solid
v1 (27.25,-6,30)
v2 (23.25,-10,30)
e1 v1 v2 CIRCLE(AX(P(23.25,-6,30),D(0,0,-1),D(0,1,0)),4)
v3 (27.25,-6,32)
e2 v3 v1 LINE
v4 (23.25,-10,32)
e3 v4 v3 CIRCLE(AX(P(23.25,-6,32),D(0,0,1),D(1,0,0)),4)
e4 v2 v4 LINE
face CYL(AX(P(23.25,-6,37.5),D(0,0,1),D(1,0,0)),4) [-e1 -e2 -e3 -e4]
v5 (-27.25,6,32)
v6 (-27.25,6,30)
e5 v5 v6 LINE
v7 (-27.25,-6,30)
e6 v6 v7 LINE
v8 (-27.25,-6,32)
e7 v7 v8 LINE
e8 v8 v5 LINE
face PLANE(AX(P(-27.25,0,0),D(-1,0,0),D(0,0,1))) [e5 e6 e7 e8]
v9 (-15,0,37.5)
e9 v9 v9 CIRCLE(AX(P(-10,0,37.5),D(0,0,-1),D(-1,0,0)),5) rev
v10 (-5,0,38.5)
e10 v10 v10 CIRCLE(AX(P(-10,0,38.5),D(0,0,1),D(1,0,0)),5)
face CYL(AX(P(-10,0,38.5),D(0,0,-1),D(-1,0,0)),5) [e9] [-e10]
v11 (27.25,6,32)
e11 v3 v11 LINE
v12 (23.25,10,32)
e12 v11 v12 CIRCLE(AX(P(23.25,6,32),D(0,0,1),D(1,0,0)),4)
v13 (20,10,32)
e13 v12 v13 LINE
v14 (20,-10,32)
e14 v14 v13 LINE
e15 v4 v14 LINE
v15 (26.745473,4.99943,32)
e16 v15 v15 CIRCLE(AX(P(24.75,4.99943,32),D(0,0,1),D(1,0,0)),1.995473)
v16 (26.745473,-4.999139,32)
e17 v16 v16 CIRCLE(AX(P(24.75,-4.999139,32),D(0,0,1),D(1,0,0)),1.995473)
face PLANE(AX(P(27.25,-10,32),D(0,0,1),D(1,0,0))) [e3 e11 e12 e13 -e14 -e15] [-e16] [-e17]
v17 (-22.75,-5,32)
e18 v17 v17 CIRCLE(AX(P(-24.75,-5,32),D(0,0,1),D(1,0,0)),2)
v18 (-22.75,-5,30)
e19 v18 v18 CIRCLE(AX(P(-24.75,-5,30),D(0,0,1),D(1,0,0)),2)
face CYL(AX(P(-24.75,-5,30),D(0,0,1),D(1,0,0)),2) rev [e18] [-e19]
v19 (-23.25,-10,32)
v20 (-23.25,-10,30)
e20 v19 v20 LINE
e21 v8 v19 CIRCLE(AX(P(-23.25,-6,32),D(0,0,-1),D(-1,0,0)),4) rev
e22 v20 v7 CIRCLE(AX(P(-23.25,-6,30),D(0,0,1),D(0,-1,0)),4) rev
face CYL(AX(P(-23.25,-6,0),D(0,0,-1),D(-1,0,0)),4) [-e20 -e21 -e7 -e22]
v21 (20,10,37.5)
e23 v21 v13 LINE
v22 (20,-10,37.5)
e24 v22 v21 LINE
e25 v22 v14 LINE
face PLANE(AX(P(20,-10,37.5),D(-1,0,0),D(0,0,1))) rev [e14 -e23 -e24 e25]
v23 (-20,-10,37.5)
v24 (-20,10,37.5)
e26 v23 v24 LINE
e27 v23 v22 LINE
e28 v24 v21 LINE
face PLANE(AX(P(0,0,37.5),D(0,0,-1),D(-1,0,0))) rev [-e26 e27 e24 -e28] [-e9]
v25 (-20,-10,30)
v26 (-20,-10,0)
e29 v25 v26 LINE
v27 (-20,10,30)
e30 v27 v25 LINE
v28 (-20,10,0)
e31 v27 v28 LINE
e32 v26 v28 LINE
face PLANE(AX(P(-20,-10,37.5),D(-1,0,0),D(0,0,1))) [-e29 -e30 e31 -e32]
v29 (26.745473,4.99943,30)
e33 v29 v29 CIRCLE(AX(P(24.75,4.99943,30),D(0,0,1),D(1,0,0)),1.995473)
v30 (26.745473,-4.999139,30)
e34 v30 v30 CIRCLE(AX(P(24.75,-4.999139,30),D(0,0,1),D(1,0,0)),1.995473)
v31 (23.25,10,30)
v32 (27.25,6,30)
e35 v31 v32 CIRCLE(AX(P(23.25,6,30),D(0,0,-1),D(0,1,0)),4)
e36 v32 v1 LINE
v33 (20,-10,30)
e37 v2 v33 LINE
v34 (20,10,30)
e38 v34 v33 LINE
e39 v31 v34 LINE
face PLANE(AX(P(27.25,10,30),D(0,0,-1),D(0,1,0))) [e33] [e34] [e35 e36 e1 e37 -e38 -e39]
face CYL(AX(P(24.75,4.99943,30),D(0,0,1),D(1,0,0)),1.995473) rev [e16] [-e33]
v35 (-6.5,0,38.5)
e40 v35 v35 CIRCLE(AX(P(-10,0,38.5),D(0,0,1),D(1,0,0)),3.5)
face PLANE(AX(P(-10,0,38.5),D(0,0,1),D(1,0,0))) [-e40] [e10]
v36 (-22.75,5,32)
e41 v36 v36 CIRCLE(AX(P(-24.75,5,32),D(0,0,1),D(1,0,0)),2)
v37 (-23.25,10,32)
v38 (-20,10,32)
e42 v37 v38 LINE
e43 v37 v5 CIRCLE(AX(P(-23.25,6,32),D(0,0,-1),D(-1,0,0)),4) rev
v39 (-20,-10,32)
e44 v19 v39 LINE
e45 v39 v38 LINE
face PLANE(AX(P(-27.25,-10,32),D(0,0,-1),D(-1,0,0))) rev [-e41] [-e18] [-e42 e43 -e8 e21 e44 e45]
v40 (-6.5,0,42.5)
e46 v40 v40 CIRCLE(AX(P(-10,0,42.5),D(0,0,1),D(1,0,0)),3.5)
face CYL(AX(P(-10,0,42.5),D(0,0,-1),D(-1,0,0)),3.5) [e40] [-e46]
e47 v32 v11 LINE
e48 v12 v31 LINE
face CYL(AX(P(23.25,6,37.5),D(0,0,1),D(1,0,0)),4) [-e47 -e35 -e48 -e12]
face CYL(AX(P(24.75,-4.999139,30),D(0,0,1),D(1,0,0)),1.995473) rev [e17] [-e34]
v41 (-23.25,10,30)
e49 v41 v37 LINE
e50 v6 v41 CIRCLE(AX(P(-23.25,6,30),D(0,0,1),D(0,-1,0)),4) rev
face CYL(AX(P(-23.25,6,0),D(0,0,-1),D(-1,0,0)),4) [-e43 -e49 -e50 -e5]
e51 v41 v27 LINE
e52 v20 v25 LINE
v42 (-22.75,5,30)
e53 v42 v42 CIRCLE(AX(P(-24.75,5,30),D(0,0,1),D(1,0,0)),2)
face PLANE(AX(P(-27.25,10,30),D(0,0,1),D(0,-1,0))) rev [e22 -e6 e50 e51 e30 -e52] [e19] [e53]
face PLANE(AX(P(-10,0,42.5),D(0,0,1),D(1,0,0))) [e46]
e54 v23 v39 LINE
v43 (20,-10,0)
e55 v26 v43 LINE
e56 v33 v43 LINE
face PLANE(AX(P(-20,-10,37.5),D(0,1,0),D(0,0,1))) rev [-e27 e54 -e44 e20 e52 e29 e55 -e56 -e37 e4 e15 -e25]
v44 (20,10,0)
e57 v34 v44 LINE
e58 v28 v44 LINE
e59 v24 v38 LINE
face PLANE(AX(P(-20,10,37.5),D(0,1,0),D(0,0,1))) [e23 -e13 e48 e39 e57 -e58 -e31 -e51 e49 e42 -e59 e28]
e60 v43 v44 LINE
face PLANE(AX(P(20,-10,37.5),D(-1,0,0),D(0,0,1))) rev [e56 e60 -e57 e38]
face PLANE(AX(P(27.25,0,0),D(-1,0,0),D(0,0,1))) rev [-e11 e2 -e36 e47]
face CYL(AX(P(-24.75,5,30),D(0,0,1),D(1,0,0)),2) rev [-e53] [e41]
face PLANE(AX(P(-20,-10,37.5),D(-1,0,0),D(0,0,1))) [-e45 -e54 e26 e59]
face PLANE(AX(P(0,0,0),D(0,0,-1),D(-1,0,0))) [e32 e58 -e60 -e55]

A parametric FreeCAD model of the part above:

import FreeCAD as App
import Part
import Sketcher
from FreeCAD import Vector
Q = App.Units.Quantity


def edges_at(feature, points):
    """Names of the edges that pass closest to the given points."""
    edges = feature.Shape.Edges
    near = lambda p: min(range(len(edges)), key=lambda i: edges[i].distToShape(Part.Vertex(*p))[0])
    return sorted({f"Edge{near(p) + 1}" for p in points})


def add_polygon(sketch, points):
    """Adds a closed chain of lines whose ends are joined by coincident constraints."""
    first, n = sketch.GeometryCount, len(points)
    for a, b in zip(points, points[1:] + points[:1]):
        sketch.addGeometry(Part.LineSegment(App.Vector(*a, 0), App.Vector(*b, 0)), False)
    for i in range(n):
        sketch.addConstraint(Sketcher.Constraint("Coincident", first + i, 2, first + (i + 1) % n, 1))

doc = App.newDocument("Part")
body = doc.addObject("PartDesign::Body", "Body")

# Sketch on XY plane
sketch1 = body.newObject("Sketcher::SketchObject", "Sketch")
sketch1.AttachmentSupport = (doc.getObject("XY_Plane"), [""])
sketch1.MapMode = "FlatFace"
add_polygon(sketch1, [(-20, 10), (-20, -10), (20, -10), (20, 10)])  # lines 0-3
sketch1.addConstraint([
    Sketcher.Constraint("Vertical", 0),
    Sketcher.Constraint("Horizontal", 1),
    Sketcher.Constraint("Vertical", 2),
    Sketcher.Constraint("Horizontal", 3),
    Sketcher.Constraint("Symmetric", 0, 2, 2, 2, -1, 1),
    Sketcher.Constraint("DistanceX", 1, 1, 1, 2, Q("40 mm")),
    Sketcher.Constraint("DistanceY", 0, 2, 0, 1, Q("20 mm")),
])
pad1 = body.newObject("PartDesign::Pad", "Pad")
pad1.Profile = sketch1
pad1.Length = 37.5

# Sketch on YZ plane
sketch2 = body.newObject("Sketcher::SketchObject", "Sketch001")
sketch2.AttachmentSupport = (doc.getObject("YZ_Plane"), [""])
sketch2.MapMode = "FlatFace"
sketch2.AttachmentOffset = App.Placement(Vector(0, 0, 20), App.Rotation())
add_polygon(sketch2, [(10, 32), (-10, 32), (-10, 30), (10, 30)])  # lines 0-3
sketch2.addConstraint([
    Sketcher.Constraint("Horizontal", 0),
    Sketcher.Constraint("Vertical", 1),
    Sketcher.Constraint("Horizontal", 2),
    Sketcher.Constraint("Vertical", 3),
    Sketcher.Constraint("DistanceX", 0, 2, 0, 1, Q("20 mm")),
    Sketcher.Constraint("DistanceY", 1, 2, 1, 1, Q("2 mm")),
    Sketcher.Constraint("DistanceX", 0, 2, -1, 1, Q("10 mm")),
    Sketcher.Constraint("DistanceY", -1, 1, 0, 2, Q("32 mm")),
])
pad2 = body.newObject("PartDesign::Pad", "Pad001")
pad2.Profile = sketch2
pad2.Length = 7.25

# Sketch on XY plane
sketch3 = body.newObject("Sketcher::SketchObject", "Sketch002")
sketch3.AttachmentSupport = (doc.getObject("XY_Plane"), [""])
sketch3.MapMode = "FlatFace"
sketch3.AttachmentOffset = App.Placement(Vector(0, 0, 32), App.Rotation())
sketch3.addGeometry([
    Part.Circle(Vector(24.75, -4.999139, 0), Vector(0, 0, 1), 1.995473),
    Part.Circle(Vector(24.75, 4.99943, 0), Vector(0, 0, 1), 1.995473),
], False)
sketch3.addConstraint([
    Sketcher.Constraint("Equal", 0, 1),
    Sketcher.Constraint("Vertical", 0, 3, 1, 3),
    Sketcher.Constraint("DistanceX", -1, 1, 0, 3, Q("24.75 mm")),
    Sketcher.Constraint("Diameter", 0, Q("3.990946 mm")),
    Sketcher.Constraint("DistanceY", 0, 3, -1, 1, Q("4.999139 mm")),
    Sketcher.Constraint("DistanceY", -1, 1, 1, 3, Q("4.99943 mm")),
])
pocket1 = body.newObject("PartDesign::Pocket", "Pocket")
pocket1.Profile = sketch3
pocket1.Length = 2
doc.recompute()

fillet = body.newObject("PartDesign::Fillet", "Fillet")
fillet.Base = (pocket1, edges_at(pocket1, [(27.25, -10, 31), (27.25, 10, 31)]))
fillet.Radius = 4

# Sketch on YZ plane
sketch4 = body.newObject("Sketcher::SketchObject", "Sketch003")
sketch4.AttachmentSupport = (doc.getObject("YZ_Plane"), [""])
sketch4.MapMode = "FlatFace"
sketch4.AttachmentOffset = App.Placement(Vector(0, 0, -20), App.Rotation())
add_polygon(sketch4, [(10, 30), (-10, 30), (-10, 32), (10, 32)])  # lines 0-3
sketch4.addConstraint([
    Sketcher.Constraint("Horizontal", 0),
    Sketcher.Constraint("Vertical", 1),
    Sketcher.Constraint("Horizontal", 2),
    Sketcher.Constraint("Vertical", 3),
    Sketcher.Constraint("DistanceX", 0, 2, 0, 1, Q("20 mm")),
    Sketcher.Constraint("DistanceY", 1, 1, 1, 2, Q("2 mm")),
    Sketcher.Constraint("DistanceX", 0, 2, -1, 1, Q("10 mm")),
    Sketcher.Constraint("DistanceY", -1, 1, 0, 2, Q("30 mm")),
])
pad3 = body.newObject("PartDesign::Pad", "Pad002")
pad3.Profile = sketch4
pad3.Length = 7.25
pad3.Reversed = True

# Sketch on XY plane
sketch5 = body.newObject("Sketcher::SketchObject", "Sketch004")
sketch5.AttachmentSupport = (doc.getObject("XY_Plane"), [""])
sketch5.MapMode = "FlatFace"
sketch5.AttachmentOffset = App.Placement(Vector(0, 0, 32), App.Rotation())
sketch5.addGeometry([
    Part.Circle(Vector(-24.75, 5, 0), Vector(0, 0, 1), 2),
    Part.Circle(Vector(-24.75, -5, 0), Vector(0, 0, 1), 2),
], False)
sketch5.addConstraint([
    Sketcher.Constraint("Equal", 0, 1),
    Sketcher.Constraint("Symmetric", 0, 3, 1, 3, -1),
    Sketcher.Constraint("Diameter", 0, Q("4 mm")),
    Sketcher.Constraint("DistanceY", -1, 1, 0, 3, Q("5 mm")),
    Sketcher.Constraint("DistanceX", 0, 3, -1, 1, Q("24.75 mm")),
])
pocket2 = body.newObject("PartDesign::Pocket", "Pocket001")
pocket2.Profile = sketch5
pocket2.Length = 2
doc.recompute()

fillet2 = body.newObject("PartDesign::Fillet", "Fillet001")
fillet2.Base = (pocket2, edges_at(pocket2, [(-27.25, -10, 31), (-27.25, 10, 31)]))
fillet2.Radius = 4

# Sketch on XY plane
sketch6 = body.newObject("Sketcher::SketchObject", "Sketch005")
sketch6.AttachmentSupport = (doc.getObject("XY_Plane"), [""])
sketch6.MapMode = "FlatFace"
sketch6.AttachmentOffset = App.Placement(Vector(0, 0, 37.5), App.Rotation())
sketch6.addGeometry(Part.Circle(Vector(-10, 0, 0), Vector(0, 0, 1), 5), False)
sketch6.addConstraint([
    Sketcher.Constraint("PointOnObject", 0, 3, -1),
    Sketcher.Constraint("Diameter", 0, Q("10 mm")),
    Sketcher.Constraint("DistanceX", 0, 3, -1, 1, Q("10 mm")),
])
pad4 = body.newObject("PartDesign::Pad", "Pad003")
pad4.Profile = sketch6
pad4.Length = 1

# Sketch on XY plane
sketch7 = body.newObject("Sketcher::SketchObject", "Sketch006")
sketch7.AttachmentSupport = (doc.getObject("XY_Plane"), [""])
sketch7.MapMode = "FlatFace"
sketch7.AttachmentOffset = App.Placement(Vector(0, 0, 38.5), App.Rotation())
sketch7.addGeometry(Part.Circle(Vector(-10, 0, 0), Vector(0, 0, 1), 3.5), False)
sketch7.addConstraint([
    Sketcher.Constraint("PointOnObject", 0, 3, -1),
    Sketcher.Constraint("Diameter", 0, Q("7 mm")),
    Sketcher.Constraint("DistanceX", 0, 3, -1, 1, Q("10 mm")),
])
pad5 = body.newObject("PartDesign::Pad", "Pad004")
pad5.Profile = sketch7
pad5.Length = 4

doc.recompute()
